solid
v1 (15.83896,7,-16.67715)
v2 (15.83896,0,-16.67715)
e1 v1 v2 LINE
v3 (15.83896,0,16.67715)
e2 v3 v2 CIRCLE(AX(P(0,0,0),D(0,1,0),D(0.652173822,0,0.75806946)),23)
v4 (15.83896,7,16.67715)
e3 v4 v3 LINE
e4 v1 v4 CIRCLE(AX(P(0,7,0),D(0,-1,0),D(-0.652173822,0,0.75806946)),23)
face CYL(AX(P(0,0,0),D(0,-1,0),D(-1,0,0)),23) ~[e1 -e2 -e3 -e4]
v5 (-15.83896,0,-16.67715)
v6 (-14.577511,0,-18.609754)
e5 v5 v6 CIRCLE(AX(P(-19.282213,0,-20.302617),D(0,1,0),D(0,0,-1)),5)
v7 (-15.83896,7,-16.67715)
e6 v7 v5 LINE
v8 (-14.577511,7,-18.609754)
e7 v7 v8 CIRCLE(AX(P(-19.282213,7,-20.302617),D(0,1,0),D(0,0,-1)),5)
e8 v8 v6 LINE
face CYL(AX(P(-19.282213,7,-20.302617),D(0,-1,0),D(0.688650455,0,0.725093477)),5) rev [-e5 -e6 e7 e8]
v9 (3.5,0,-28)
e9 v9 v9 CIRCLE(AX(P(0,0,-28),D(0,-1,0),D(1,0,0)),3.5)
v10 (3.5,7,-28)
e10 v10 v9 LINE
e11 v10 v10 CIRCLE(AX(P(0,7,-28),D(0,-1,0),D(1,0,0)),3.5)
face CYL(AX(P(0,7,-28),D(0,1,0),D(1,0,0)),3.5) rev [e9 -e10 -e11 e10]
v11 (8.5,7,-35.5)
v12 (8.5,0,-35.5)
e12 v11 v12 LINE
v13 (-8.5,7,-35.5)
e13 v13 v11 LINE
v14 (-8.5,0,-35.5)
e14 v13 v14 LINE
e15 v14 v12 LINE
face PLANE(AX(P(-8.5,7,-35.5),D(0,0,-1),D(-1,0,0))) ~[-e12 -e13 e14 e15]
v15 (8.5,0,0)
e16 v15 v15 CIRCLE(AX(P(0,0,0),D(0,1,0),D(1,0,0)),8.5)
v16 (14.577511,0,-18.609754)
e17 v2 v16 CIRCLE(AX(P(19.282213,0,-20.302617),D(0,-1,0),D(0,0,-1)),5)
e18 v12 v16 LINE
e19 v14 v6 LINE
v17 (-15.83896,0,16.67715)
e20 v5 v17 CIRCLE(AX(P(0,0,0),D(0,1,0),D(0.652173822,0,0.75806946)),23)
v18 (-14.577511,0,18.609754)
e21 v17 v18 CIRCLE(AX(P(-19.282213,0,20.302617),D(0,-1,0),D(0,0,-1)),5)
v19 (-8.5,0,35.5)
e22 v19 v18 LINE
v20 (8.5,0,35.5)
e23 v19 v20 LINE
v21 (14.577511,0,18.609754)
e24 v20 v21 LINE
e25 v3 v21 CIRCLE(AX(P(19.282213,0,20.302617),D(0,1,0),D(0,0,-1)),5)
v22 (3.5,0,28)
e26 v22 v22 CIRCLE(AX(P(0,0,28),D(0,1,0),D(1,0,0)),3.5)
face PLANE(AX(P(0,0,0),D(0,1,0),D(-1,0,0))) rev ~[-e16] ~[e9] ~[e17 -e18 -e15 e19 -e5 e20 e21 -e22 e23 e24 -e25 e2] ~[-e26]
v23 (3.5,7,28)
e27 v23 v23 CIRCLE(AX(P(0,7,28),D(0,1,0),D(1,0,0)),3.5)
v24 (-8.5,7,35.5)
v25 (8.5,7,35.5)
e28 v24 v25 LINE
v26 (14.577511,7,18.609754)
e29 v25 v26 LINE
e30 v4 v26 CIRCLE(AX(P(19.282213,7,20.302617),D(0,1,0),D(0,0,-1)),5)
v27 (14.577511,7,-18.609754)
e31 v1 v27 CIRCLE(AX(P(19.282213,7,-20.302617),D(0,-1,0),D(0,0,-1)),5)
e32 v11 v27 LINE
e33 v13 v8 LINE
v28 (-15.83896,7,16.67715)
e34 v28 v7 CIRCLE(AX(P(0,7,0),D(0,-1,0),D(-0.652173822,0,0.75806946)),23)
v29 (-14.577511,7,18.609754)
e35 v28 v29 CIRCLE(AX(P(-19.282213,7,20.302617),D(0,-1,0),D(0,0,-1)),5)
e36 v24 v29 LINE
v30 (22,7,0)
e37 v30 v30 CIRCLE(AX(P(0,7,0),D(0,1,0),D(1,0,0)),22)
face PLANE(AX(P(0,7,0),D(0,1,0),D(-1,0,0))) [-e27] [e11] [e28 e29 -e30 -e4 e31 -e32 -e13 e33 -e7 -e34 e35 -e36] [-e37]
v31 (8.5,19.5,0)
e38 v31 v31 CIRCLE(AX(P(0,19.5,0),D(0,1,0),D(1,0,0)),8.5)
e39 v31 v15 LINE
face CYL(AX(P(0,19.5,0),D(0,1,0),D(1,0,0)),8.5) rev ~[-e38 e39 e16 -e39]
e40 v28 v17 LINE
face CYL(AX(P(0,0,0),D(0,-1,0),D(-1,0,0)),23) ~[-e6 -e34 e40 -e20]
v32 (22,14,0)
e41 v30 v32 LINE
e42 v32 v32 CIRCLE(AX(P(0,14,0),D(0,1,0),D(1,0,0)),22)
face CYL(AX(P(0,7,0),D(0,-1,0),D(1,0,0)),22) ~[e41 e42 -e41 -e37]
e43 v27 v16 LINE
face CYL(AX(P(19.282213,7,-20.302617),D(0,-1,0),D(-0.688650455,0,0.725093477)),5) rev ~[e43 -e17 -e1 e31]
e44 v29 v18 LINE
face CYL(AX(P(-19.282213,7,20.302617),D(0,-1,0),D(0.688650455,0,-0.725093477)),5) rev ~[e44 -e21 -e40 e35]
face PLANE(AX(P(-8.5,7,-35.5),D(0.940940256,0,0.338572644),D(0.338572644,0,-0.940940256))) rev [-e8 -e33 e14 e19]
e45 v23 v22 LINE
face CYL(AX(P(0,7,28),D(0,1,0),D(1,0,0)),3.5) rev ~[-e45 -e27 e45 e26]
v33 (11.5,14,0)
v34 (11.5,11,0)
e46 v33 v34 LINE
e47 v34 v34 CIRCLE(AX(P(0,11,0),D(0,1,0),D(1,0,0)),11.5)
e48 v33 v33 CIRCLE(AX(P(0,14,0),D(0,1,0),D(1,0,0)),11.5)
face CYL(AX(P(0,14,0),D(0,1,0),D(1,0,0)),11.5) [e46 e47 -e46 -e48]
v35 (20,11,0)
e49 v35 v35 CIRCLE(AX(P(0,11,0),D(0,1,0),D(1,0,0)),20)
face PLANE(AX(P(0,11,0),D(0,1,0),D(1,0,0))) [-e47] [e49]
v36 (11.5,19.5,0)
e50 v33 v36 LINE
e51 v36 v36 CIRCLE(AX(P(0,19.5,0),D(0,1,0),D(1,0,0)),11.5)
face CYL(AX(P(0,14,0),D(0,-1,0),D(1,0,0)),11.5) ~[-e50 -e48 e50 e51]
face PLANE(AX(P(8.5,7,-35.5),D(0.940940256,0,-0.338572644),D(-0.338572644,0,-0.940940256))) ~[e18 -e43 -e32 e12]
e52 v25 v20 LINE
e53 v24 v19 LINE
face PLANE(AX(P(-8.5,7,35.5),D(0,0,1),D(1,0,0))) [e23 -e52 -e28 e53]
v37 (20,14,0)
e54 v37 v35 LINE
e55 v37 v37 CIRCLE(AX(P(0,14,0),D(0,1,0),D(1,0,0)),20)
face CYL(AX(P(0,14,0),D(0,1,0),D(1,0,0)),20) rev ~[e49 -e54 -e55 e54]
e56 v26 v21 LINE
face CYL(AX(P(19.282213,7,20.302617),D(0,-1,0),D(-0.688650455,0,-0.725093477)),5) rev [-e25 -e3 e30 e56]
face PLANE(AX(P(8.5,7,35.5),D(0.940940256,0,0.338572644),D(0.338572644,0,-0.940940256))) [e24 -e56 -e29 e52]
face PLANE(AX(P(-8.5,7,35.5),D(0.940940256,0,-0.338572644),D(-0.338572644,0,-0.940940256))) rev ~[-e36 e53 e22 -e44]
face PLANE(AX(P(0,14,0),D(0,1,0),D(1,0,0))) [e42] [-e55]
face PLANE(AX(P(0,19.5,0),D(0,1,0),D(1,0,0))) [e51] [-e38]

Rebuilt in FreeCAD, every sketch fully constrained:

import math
import FreeCAD as App
import Part
import Sketcher


def edges_at(feature, points):
    """Names of the edges that pass closest to the given points."""
    edges = feature.Shape.Edges
    near = lambda p: min(range(len(edges)), key=lambda i: edges[i].distToShape(Part.Vertex(*p))[0])
    return sorted({f"Edge{near(p) + 1}" for p in points})

doc = App.newDocument("Part")
body = doc.addObject("PartDesign::Body", "Body")

# Sketch on XZ plane
sketch1 = body.newObject("Sketcher::SketchObject", "Sketch")
sketch1.AttachmentSupport = (doc.getObject("XZ_Plane"), [""])
sketch1.MapMode = "FlatFace"
sketch1.addGeometry(Part.Circle(App.Vector(0, 0, 0), App.Vector(0, 0, 1), 23), False)
sketch1.addConstraint([
    Sketcher.Constraint("Coincident", 0, 3, -1, 1),
    Sketcher.Constraint("Diameter", 0, 46.0),
])
pad1 = body.newObject("PartDesign::Pad", "Pad")
pad1.Profile = sketch1
pad1.Length = 7
pad1.Reversed = True

# Sketch on XZ plane
sketch2 = body.newObject("Sketcher::SketchObject", "Sketch001")
sketch2.AttachmentSupport = (doc.getObject("XZ_Plane"), [""])
sketch2.MapMode = "FlatFace"
sketch2.AttachmentOffset = App.Placement(App.Vector(0, 0, -7), App.Rotation())
sketch2.addGeometry([
    Part.LineSegment(App.Vector(-15, 17.4, 0), App.Vector(-8.5, 35.5, 0)),  # 0
    Part.LineSegment(App.Vector(-8.5, 35.5, 0), App.Vector(8.5, 35.5, 0)),  # 1
    Part.LineSegment(App.Vector(8.5, 35.5, 0), App.Vector(15, 17.4, 0)),  # 2
    Part.ArcOfCircle(Part.Circle(App.Vector(0, 0, 0), App.Vector(0, 0, 1), 23), math.radians(49), math.radians(131)),  # 3
    Part.Circle(App.Vector(0, 28, 0), App.Vector(0, 0, 1), 3.5),  # 4
], False)
sketch2.addConstraint([
    Sketcher.Constraint("Coincident", 0, 2, 1, 1),
    Sketcher.Constraint("Coincident", 1, 2, 2, 1),
    Sketcher.Constraint("Coincident", 2, 2, 3, 1),
    Sketcher.Constraint("Coincident", 3, 2, 0, 1),
    Sketcher.Constraint("Horizontal", 1),
    Sketcher.Constraint("Coincident", 3, 3, -1, 1),
    Sketcher.Constraint("PointOnObject", 4, 3, -2),
    Sketcher.Constraint("Horizontal", 2, 2, 3, 2),
    Sketcher.Constraint("Equal", 0, 2),
    Sketcher.Constraint("Diameter", 4, 7.0),
    Sketcher.Constraint("DistanceX", 1, 1, 1, 2, 17.0),
    Sketcher.Constraint("DistanceY", -1, 1, 4, 3, 28.0),
    Sketcher.Constraint("Radius", 3, 23.0),
    Sketcher.Constraint("DistanceX", 3, 2, 2, 2, 30.0),
    Sketcher.Constraint("DistanceY", -1, 1, 0, 2, 35.5),
])
pad2 = body.newObject("PartDesign::Pad", "Pad001")
pad2.Profile = sketch2
pad2.Length = 7
doc.recompute()

fillet = body.newObject("PartDesign::Fillet", "Fillet")
fillet.Base = (pad2, edges_at(pad2, [(15, 3.5, 17.436), (-15, 3.5, 17.436)]))
fillet.Radius = 5
doc.recompute()

mirrored = body.newObject("PartDesign::Mirrored", "Mirrored")
mirrored.Originals = [pad2, fillet]
mirrored.MirrorPlane = (doc.getObject("XY_Plane"), [""])
body.Tip = mirrored

# Sketch on XZ plane
sketch3 = body.newObject("Sketcher::SketchObject", "Sketch002")
sketch3.AttachmentSupport = (doc.getObject("XZ_Plane"), [""])
sketch3.MapMode = "FlatFace"
sketch3.AttachmentOffset = App.Placement(App.Vector(0, 0, -7), App.Rotation())
sketch3.addGeometry(Part.Circle(App.Vector(0, 0, 0), App.Vector(0, 0, 1), 22), False)
sketch3.addConstraint([
    Sketcher.Constraint("Coincident", 0, 3, -1, 1),
    Sketcher.Constraint("Diameter", 0, 44.0),
])
pad3 = body.newObject("PartDesign::Pad", "Pad002")
pad3.Profile = sketch3
pad3.Length = 7
pad3.Reversed = True

# Sketch on XZ plane
sketch4 = body.newObject("Sketcher::SketchObject", "Sketch003")
sketch4.AttachmentSupport = (doc.getObject("XZ_Plane"), [""])
sketch4.MapMode = "FlatFace"
sketch4.AttachmentOffset = App.Placement(App.Vector(0, 0, -14), App.Rotation())
sketch4.addGeometry(Part.Circle(App.Vector(0, 0, 0), App.Vector(0, 0, 1), 12), False)
sketch4.addConstraint([
    Sketcher.Constraint("Coincident", 0, 3, -1, 1),
    Sketcher.Constraint("Diameter", 0, 23.0),
])
pad4 = body.newObject("PartDesign::Pad", "Pad003")
pad4.Profile = sketch4
pad4.Length = 5.5
pad4.Reversed = True

# Sketch on XZ plane
sketch5 = body.newObject("Sketcher::SketchObject", "Sketch004")
sketch5.AttachmentSupport = (doc.getObject("XZ_Plane"), [""])
sketch5.MapMode = "FlatFace"
sketch5.AttachmentOffset = App.Placement(App.Vector(0, 0, -19.5), App.Rotation())
sketch5.addGeometry(Part.Circle(App.Vector(0, 0, 0), App.Vector(0, 0, 1), 8), False)
sketch5.addConstraint([
    Sketcher.Constraint("Coincident", 0, 3, -1, 1),
    Sketcher.Constraint("Diameter", 0, 17.0),
])
pocket1 = body.newObject("PartDesign::Pocket", "Pocket")
pocket1.Profile = sketch5
pocket1.Type = "ThroughAll"
pocket1.Reversed = True

# Sketch on XZ plane
sketch6 = body.newObject("Sketcher::SketchObject", "Sketch005")
sketch6.AttachmentSupport = (doc.getObject("XZ_Plane"), [""])
sketch6.MapMode = "FlatFace"
sketch6.AttachmentOffset = App.Placement(App.Vector(0, 0, -14), App.Rotation())
sketch6.addGeometry([
    Part.Circle(App.Vector(0, 0, 0), App.Vector(0, 0, 1), 20),
    Part.Circle(App.Vector(0, 0, 0), App.Vector(0, 0, 1), 12),
], False)
sketch6.addConstraint([
    Sketcher.Constraint("Coincident", 0, 3, -1, 1),
    Sketcher.Constraint("Coincident", 1, 3, -1, 1),
    Sketcher.Constraint("Diameter", 0, 40.0),
    Sketcher.Constraint("Diameter", 1, 23.0),
])
pocket2 = body.newObject("PartDesign::Pocket", "Pocket001")
pocket2.Profile = sketch6
pocket2.Length = 3
pocket2.Reversed = True

doc.recompute()
